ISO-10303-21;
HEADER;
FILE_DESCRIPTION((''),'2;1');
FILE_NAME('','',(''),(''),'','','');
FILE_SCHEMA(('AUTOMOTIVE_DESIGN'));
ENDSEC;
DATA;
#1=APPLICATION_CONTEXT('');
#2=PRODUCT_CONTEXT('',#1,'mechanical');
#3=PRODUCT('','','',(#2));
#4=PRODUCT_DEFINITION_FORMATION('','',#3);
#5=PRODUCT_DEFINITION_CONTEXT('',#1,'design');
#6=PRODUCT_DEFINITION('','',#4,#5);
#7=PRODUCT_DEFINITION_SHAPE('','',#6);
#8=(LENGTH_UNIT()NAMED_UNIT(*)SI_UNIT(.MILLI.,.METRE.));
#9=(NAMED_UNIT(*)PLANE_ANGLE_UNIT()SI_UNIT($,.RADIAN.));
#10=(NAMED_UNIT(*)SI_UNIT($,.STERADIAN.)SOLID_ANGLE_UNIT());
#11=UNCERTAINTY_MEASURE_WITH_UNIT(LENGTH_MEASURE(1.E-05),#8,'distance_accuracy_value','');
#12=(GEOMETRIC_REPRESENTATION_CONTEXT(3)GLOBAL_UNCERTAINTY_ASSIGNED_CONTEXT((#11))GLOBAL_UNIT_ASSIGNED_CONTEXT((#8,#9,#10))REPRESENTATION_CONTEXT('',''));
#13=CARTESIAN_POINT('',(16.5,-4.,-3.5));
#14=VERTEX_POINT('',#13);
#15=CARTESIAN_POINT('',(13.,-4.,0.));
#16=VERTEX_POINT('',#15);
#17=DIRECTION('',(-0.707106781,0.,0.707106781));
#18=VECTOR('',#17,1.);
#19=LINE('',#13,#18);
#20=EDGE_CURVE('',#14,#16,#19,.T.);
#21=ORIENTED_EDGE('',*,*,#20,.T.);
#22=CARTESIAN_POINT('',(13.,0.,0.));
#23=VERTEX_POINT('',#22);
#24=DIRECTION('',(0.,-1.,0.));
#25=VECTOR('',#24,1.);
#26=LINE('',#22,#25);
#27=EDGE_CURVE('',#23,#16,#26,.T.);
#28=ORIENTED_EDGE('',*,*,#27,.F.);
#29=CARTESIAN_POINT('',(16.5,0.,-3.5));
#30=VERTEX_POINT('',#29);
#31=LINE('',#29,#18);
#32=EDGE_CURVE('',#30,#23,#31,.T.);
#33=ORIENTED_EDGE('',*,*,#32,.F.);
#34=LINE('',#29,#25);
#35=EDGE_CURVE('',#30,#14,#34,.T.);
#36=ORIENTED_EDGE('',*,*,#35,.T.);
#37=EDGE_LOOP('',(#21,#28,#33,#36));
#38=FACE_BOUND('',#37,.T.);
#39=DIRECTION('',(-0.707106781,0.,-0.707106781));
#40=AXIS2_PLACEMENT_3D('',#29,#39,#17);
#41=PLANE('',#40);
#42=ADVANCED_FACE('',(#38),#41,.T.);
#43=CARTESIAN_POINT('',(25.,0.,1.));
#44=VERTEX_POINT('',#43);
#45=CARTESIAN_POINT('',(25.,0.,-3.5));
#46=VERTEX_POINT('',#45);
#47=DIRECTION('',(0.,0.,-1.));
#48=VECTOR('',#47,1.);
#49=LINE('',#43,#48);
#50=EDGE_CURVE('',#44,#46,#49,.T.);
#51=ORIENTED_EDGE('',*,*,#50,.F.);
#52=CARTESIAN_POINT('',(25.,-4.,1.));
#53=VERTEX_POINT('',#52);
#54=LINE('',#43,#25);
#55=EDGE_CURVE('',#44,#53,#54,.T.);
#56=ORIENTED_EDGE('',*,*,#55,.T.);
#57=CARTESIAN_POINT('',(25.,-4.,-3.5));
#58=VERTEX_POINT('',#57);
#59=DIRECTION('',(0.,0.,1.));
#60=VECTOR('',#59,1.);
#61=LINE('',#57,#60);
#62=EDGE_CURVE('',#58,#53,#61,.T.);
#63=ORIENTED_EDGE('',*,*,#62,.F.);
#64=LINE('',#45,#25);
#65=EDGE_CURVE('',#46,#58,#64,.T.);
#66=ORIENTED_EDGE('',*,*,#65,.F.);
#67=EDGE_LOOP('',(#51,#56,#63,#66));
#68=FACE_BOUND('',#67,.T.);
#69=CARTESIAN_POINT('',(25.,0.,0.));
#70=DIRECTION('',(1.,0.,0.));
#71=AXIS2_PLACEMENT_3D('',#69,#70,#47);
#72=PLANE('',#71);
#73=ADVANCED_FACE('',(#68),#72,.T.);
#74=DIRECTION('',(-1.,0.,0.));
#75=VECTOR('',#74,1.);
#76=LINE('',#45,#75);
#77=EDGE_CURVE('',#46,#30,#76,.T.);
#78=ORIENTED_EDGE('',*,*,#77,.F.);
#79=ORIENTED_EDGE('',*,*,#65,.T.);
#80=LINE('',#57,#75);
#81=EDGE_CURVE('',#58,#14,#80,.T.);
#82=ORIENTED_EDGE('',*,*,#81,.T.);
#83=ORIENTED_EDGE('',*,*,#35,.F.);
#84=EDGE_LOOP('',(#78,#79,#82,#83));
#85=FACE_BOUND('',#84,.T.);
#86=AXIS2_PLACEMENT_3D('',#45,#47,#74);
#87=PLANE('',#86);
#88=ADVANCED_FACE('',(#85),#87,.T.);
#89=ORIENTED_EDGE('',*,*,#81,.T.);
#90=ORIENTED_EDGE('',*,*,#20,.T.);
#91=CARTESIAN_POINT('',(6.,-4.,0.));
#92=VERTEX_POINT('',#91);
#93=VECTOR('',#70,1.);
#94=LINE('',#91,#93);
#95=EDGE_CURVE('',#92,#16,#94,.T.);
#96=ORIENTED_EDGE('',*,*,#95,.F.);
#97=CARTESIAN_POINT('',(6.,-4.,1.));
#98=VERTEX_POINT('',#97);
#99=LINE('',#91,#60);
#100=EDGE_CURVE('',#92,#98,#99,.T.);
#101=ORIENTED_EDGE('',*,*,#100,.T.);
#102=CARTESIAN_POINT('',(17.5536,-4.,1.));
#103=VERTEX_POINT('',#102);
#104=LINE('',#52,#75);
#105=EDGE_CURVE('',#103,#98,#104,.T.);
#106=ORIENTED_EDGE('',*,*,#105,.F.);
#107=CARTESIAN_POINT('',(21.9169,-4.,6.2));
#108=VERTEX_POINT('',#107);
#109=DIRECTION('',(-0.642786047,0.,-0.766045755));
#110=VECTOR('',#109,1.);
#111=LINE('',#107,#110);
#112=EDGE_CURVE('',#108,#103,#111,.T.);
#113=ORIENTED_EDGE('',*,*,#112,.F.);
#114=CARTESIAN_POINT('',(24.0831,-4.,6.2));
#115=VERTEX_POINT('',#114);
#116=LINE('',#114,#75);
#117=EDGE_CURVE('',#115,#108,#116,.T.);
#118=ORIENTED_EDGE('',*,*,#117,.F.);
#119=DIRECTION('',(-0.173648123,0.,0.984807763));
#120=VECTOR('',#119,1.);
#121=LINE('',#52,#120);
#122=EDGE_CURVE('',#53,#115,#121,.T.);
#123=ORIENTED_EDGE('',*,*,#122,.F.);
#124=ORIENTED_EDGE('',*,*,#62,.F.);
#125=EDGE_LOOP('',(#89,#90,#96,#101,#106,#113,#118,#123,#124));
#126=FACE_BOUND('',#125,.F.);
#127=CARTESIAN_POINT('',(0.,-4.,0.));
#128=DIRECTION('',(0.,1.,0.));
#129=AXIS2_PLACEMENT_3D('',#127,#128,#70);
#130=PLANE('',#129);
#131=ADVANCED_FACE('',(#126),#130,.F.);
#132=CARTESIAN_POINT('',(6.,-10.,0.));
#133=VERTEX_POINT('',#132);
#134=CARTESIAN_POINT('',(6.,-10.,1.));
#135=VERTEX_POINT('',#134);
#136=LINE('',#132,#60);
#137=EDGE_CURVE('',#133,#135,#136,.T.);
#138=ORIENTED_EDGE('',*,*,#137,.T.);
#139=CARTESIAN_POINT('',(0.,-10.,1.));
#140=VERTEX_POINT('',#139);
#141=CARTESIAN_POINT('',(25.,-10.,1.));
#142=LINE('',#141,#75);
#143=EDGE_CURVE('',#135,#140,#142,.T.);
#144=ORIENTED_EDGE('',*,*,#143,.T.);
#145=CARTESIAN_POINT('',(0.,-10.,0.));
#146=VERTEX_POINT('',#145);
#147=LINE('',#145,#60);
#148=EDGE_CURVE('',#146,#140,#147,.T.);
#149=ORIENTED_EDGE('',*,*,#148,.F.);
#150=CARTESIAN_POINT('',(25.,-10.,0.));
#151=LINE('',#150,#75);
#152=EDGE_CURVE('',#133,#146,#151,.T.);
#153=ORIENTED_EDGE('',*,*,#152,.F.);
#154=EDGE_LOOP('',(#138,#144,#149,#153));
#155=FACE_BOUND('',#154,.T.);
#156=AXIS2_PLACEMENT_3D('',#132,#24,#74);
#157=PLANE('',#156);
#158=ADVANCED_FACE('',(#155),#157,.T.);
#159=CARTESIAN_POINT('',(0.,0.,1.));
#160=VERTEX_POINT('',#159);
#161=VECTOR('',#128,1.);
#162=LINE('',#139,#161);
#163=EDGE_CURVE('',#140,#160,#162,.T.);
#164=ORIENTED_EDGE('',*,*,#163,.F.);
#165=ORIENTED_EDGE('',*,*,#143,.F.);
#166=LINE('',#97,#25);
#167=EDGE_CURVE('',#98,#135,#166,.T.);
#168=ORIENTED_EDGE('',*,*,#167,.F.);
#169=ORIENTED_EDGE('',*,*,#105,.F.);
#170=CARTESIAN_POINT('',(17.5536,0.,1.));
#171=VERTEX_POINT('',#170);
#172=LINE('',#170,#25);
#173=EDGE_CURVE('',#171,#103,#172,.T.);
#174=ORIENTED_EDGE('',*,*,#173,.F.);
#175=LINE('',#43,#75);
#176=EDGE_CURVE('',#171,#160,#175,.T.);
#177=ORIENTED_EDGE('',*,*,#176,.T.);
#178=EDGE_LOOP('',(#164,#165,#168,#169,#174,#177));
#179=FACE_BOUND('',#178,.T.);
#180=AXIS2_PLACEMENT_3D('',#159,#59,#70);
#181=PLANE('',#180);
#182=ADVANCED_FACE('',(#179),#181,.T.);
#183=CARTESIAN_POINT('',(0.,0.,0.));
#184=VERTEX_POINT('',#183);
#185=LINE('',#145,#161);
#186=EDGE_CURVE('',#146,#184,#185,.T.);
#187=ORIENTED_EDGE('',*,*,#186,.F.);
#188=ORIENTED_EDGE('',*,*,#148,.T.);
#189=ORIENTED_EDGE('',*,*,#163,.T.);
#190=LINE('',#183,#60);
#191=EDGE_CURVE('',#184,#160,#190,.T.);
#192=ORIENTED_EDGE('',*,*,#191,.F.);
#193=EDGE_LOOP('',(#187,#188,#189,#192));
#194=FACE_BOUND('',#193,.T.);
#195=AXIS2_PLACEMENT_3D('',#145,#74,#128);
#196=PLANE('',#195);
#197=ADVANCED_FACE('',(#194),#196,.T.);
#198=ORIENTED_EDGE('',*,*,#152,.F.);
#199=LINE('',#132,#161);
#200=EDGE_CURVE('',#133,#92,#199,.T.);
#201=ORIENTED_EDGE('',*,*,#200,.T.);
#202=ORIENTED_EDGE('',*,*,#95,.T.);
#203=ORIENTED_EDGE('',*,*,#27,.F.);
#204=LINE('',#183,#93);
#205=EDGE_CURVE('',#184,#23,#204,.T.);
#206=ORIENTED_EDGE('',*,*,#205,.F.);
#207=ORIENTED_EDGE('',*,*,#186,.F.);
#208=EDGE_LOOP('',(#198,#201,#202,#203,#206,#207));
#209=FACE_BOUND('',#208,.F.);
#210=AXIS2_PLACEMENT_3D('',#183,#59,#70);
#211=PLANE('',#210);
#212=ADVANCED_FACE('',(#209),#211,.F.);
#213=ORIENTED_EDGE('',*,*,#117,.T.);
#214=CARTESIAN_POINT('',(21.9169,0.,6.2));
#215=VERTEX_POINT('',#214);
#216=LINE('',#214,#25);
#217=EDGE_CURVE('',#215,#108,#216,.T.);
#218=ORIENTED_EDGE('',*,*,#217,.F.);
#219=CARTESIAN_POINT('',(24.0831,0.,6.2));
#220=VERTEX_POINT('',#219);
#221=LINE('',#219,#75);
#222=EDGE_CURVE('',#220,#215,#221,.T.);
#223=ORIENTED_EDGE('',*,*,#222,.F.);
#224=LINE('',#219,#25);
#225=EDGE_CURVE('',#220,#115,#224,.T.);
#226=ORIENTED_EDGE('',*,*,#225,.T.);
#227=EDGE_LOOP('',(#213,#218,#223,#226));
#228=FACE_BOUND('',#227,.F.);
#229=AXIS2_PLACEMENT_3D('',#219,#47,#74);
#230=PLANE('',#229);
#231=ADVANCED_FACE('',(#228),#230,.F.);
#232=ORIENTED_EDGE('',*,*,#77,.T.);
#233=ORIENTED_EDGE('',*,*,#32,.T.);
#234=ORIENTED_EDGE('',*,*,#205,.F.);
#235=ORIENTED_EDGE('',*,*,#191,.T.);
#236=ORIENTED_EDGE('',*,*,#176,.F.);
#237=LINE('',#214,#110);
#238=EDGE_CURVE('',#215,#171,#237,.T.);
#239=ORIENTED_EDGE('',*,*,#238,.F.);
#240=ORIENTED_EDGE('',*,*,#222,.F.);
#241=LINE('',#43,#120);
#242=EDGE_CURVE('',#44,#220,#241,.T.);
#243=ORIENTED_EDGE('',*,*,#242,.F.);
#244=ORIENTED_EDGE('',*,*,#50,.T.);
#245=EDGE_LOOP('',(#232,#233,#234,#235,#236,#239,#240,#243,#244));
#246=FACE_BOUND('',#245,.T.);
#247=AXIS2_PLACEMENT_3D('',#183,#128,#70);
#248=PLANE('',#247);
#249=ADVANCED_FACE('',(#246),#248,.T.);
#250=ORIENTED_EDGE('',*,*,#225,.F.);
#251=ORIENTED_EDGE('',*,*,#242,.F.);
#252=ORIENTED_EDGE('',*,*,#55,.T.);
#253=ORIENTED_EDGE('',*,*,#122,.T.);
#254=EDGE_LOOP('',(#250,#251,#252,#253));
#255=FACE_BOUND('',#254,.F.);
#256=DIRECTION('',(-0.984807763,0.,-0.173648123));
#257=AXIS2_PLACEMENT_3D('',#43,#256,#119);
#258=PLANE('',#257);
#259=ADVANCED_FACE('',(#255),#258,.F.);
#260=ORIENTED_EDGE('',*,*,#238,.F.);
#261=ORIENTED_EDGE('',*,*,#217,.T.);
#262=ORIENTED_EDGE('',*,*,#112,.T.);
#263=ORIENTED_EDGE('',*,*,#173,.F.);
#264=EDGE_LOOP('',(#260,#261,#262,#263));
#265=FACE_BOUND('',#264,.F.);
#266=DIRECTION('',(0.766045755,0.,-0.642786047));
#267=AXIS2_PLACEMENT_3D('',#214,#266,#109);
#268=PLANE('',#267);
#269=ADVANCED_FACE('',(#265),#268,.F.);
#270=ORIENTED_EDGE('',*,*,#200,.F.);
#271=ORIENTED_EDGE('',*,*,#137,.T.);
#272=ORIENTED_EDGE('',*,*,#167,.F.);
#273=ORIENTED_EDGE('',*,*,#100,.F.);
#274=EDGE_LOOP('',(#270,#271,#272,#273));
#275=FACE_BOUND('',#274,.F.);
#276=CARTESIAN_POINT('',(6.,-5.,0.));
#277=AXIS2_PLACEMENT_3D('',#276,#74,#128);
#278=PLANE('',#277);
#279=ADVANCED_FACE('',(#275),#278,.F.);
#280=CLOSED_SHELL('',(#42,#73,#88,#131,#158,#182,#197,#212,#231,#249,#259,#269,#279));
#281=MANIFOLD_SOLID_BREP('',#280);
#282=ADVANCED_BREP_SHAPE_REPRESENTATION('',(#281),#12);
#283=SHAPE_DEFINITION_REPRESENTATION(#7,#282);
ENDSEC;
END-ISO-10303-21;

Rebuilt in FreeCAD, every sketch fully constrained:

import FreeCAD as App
import Part
import Sketcher
from FreeCAD import Vector
Q = App.Units.Quantity

doc = App.newDocument("Part")
params = doc.addObject("Spreadsheet::Sheet", "Params")
for row, (alias, value) in enumerate([
    ("sketch1_width", "25 mm"),
    ("sketch1_height", "4 mm"),
    ("sketch1_height2", "10 mm"),
    ("pad1_length", "1 mm"),
    ("pad2_length", "4 mm"),
    ("sketch3_width", "12 mm"),
    ("sketch3_height", "3.5 mm"),
    ("pad3_length", "4 mm"),
], start=1):
    params.set(f"A{row}", alias)
    params.set(f"B{row}", "=" + value)
    params.setAlias(f"B{row}", alias)

body = doc.addObject("PartDesign::Body", "Body")

# Sketch on XY plane
sketch1 = body.newObject("Sketcher::SketchObject", "Sketch")
sketch1.AttachmentSupport = (doc.getObject("XY_Plane"), [""])
sketch1.MapMode = "FlatFace"
sketch1.addGeometry(Part.LineSegment(Vector(6, -4, 0), Vector(25, -4, 0)), False)
sketch1.addGeometry(Part.LineSegment(Vector(25, -4, 0), Vector(25, 0, 0)), False)
sketch1.addGeometry(Part.LineSegment(Vector(25, 0, 0), Vector(0, 0, 0)), False)
sketch1.addGeometry(Part.LineSegment(Vector(0, 0, 0), Vector(0, -10, 0)), False)
sketch1.addGeometry(Part.LineSegment(Vector(0, -10, 0), Vector(6, -10, 0)), False)
sketch1.addGeometry(Part.LineSegment(Vector(6, -10, 0), Vector(6, -4, 0)), False)
sketch1.addConstraint(Sketcher.Constraint("Coincident", 0, 2, 1, 1))
sketch1.addConstraint(Sketcher.Constraint("Coincident", 1, 2, 2, 1))
sketch1.addConstraint(Sketcher.Constraint("Coincident", 2, 2, 3, 1))
sketch1.addConstraint(Sketcher.Constraint("Coincident", 3, 2, 4, 1))
sketch1.addConstraint(Sketcher.Constraint("Coincident", 4, 2, 5, 1))
sketch1.addConstraint(Sketcher.Constraint("Coincident", 5, 2, 0, 1))
sketch1.addConstraint(Sketcher.Constraint("Horizontal", 0))
sketch1.addConstraint(Sketcher.Constraint("Vertical", 1))
sketch1.addConstraint(Sketcher.Constraint("Horizontal", 2))
sketch1.addConstraint(Sketcher.Constraint("Vertical", 3))
sketch1.addConstraint(Sketcher.Constraint("Horizontal", 4))
sketch1.addConstraint(Sketcher.Constraint("Vertical", 5))
sketch1.addConstraint(Sketcher.Constraint("Coincident", 2, 2, -1, 1))
sketch1.addConstraint(Sketcher.Constraint("Equal", 4, 5))
sketch1.addConstraint(Sketcher.Constraint("DistanceX", 2, 2, 2, 1, 25.0))
sketch1.addConstraint(Sketcher.Constraint("DistanceY", 1, 1, 1, 2, 4.0))
sketch1.addConstraint(Sketcher.Constraint("DistanceY", 3, 2, 3, 1, 10.0))
sketch1.setExpression("Constraints[14]", "Params.sketch1_width")
sketch1.setExpression("Constraints[15]", "Params.sketch1_height")
sketch1.setExpression("Constraints[16]", "Params.sketch1_height2")
pad1 = body.newObject("PartDesign::Pad", "Pad")
pad1.Profile = sketch1
pad1.setExpression("Length", "Params.pad1_length")

# Sketch on XZ plane
sketch2 = body.newObject("Sketcher::SketchObject", "Sketch001")
sketch2.AttachmentSupport = (doc.getObject("XZ_Plane"), [""])
sketch2.MapMode = "FlatFace"
sketch2.addGeometry(Part.LineSegment(Vector(24.1, 6.2, 0), Vector(25, 1, 0)), False)
sketch2.addGeometry(Part.LineSegment(Vector(25, 1, 0), Vector(17.6, 1, 0)), False)
sketch2.addGeometry(Part.LineSegment(Vector(17.6, 1, 0), Vector(21.9, 6.2, 0)), False)
sketch2.addGeometry(Part.LineSegment(Vector(21.9, 6.2, 0), Vector(24.1, 6.2, 0)), False)
sketch2.addConstraint(Sketcher.Constraint("Coincident", 0, 2, 1, 1))
sketch2.addConstraint(Sketcher.Constraint("Coincident", 1, 2, 2, 1))
sketch2.addConstraint(Sketcher.Constraint("Coincident", 2, 2, 3, 1))
sketch2.addConstraint(Sketcher.Constraint("Coincident", 3, 2, 0, 1))
sketch2.addConstraint(Sketcher.Constraint("Horizontal", 1))
sketch2.addConstraint(Sketcher.Constraint("Horizontal", 3))
sketch2.addConstraint(Sketcher.Constraint("Angle", 0, Q("-80 deg")))
sketch2.addConstraint(Sketcher.Constraint("Angle", 2, Q("50 deg")))
sketch2.addConstraint(Sketcher.Constraint("DistanceY", 0, 2, 2, 2, 5.2))
sketch2.addConstraint(Sketcher.Constraint("DistanceX", -1, 1, 0, 2, 25.0))
sketch2.addConstraint(Sketcher.Constraint("DistanceY", -1, 1, 0, 2, 1.0))
sketch2.addConstraint(Sketcher.Constraint("DistanceX", 1, 2, 1, 1, 7.4464))
pad2 = body.newObject("PartDesign::Pad", "Pad001")
pad2.Profile = sketch2
pad2.setExpression("Length", "Params.pad2_length")

# Sketch on XZ plane
sketch3 = body.newObject("Sketcher::SketchObject", "Sketch002")
sketch3.AttachmentSupport = (doc.getObject("XZ_Plane"), [""])
sketch3.MapMode = "FlatFace"
sketch3.addGeometry(Part.LineSegment(Vector(13, 0, 0), Vector(25, 0, 0)), False)
sketch3.addGeometry(Part.LineSegment(Vector(25, 0, 0), Vector(25, -3.5, 0)), False)
sketch3.addGeometry(Part.LineSegment(Vector(25, -3.5, 0), Vector(16.5, -3.5, 0)), False)
sketch3.addGeometry(Part.LineSegment(Vector(16.5, -3.5, 0), Vector(13, 0, 0)), False)
sketch3.addConstraint(Sketcher.Constraint("Coincident", 0, 2, 1, 1))
sketch3.addConstraint(Sketcher.Constraint("Coincident", 1, 2, 2, 1))
sketch3.addConstraint(Sketcher.Constraint("Coincident", 2, 2, 3, 1))
sketch3.addConstraint(Sketcher.Constraint("Coincident", 3, 2, 0, 1))
sketch3.addConstraint(Sketcher.Constraint("Horizontal", 0))
sketch3.addConstraint(Sketcher.Constraint("Vertical", 1))
sketch3.addConstraint(Sketcher.Constraint("Horizontal", 2))
sketch3.addConstraint(Sketcher.Constraint("PointOnObject", 0, 2, -1))
sketch3.addConstraint(Sketcher.Constraint("DistanceX", 0, 1, 0, 2, 12.0))
sketch3.addConstraint(Sketcher.Constraint("DistanceY", 1, 2, 1, 1, 3.5))
sketch3.addConstraint(Sketcher.Constraint("DistanceX", 3, 2, 2, 2, 3.5))
sketch3.addConstraint(Sketcher.Constraint("DistanceX", -1, 1, 0, 2, 25.0))
sketch3.setExpression("Constraints[8]", "Params.sketch3_width")
sketch3.setExpression("Constraints[9]", "Params.sketch3_height")
pad3 = body.newObject("PartDesign::Pad", "Pad002")
pad3.Profile = sketch3
pad3.setExpression("Length", "Params.pad3_length")

doc.recompute()
